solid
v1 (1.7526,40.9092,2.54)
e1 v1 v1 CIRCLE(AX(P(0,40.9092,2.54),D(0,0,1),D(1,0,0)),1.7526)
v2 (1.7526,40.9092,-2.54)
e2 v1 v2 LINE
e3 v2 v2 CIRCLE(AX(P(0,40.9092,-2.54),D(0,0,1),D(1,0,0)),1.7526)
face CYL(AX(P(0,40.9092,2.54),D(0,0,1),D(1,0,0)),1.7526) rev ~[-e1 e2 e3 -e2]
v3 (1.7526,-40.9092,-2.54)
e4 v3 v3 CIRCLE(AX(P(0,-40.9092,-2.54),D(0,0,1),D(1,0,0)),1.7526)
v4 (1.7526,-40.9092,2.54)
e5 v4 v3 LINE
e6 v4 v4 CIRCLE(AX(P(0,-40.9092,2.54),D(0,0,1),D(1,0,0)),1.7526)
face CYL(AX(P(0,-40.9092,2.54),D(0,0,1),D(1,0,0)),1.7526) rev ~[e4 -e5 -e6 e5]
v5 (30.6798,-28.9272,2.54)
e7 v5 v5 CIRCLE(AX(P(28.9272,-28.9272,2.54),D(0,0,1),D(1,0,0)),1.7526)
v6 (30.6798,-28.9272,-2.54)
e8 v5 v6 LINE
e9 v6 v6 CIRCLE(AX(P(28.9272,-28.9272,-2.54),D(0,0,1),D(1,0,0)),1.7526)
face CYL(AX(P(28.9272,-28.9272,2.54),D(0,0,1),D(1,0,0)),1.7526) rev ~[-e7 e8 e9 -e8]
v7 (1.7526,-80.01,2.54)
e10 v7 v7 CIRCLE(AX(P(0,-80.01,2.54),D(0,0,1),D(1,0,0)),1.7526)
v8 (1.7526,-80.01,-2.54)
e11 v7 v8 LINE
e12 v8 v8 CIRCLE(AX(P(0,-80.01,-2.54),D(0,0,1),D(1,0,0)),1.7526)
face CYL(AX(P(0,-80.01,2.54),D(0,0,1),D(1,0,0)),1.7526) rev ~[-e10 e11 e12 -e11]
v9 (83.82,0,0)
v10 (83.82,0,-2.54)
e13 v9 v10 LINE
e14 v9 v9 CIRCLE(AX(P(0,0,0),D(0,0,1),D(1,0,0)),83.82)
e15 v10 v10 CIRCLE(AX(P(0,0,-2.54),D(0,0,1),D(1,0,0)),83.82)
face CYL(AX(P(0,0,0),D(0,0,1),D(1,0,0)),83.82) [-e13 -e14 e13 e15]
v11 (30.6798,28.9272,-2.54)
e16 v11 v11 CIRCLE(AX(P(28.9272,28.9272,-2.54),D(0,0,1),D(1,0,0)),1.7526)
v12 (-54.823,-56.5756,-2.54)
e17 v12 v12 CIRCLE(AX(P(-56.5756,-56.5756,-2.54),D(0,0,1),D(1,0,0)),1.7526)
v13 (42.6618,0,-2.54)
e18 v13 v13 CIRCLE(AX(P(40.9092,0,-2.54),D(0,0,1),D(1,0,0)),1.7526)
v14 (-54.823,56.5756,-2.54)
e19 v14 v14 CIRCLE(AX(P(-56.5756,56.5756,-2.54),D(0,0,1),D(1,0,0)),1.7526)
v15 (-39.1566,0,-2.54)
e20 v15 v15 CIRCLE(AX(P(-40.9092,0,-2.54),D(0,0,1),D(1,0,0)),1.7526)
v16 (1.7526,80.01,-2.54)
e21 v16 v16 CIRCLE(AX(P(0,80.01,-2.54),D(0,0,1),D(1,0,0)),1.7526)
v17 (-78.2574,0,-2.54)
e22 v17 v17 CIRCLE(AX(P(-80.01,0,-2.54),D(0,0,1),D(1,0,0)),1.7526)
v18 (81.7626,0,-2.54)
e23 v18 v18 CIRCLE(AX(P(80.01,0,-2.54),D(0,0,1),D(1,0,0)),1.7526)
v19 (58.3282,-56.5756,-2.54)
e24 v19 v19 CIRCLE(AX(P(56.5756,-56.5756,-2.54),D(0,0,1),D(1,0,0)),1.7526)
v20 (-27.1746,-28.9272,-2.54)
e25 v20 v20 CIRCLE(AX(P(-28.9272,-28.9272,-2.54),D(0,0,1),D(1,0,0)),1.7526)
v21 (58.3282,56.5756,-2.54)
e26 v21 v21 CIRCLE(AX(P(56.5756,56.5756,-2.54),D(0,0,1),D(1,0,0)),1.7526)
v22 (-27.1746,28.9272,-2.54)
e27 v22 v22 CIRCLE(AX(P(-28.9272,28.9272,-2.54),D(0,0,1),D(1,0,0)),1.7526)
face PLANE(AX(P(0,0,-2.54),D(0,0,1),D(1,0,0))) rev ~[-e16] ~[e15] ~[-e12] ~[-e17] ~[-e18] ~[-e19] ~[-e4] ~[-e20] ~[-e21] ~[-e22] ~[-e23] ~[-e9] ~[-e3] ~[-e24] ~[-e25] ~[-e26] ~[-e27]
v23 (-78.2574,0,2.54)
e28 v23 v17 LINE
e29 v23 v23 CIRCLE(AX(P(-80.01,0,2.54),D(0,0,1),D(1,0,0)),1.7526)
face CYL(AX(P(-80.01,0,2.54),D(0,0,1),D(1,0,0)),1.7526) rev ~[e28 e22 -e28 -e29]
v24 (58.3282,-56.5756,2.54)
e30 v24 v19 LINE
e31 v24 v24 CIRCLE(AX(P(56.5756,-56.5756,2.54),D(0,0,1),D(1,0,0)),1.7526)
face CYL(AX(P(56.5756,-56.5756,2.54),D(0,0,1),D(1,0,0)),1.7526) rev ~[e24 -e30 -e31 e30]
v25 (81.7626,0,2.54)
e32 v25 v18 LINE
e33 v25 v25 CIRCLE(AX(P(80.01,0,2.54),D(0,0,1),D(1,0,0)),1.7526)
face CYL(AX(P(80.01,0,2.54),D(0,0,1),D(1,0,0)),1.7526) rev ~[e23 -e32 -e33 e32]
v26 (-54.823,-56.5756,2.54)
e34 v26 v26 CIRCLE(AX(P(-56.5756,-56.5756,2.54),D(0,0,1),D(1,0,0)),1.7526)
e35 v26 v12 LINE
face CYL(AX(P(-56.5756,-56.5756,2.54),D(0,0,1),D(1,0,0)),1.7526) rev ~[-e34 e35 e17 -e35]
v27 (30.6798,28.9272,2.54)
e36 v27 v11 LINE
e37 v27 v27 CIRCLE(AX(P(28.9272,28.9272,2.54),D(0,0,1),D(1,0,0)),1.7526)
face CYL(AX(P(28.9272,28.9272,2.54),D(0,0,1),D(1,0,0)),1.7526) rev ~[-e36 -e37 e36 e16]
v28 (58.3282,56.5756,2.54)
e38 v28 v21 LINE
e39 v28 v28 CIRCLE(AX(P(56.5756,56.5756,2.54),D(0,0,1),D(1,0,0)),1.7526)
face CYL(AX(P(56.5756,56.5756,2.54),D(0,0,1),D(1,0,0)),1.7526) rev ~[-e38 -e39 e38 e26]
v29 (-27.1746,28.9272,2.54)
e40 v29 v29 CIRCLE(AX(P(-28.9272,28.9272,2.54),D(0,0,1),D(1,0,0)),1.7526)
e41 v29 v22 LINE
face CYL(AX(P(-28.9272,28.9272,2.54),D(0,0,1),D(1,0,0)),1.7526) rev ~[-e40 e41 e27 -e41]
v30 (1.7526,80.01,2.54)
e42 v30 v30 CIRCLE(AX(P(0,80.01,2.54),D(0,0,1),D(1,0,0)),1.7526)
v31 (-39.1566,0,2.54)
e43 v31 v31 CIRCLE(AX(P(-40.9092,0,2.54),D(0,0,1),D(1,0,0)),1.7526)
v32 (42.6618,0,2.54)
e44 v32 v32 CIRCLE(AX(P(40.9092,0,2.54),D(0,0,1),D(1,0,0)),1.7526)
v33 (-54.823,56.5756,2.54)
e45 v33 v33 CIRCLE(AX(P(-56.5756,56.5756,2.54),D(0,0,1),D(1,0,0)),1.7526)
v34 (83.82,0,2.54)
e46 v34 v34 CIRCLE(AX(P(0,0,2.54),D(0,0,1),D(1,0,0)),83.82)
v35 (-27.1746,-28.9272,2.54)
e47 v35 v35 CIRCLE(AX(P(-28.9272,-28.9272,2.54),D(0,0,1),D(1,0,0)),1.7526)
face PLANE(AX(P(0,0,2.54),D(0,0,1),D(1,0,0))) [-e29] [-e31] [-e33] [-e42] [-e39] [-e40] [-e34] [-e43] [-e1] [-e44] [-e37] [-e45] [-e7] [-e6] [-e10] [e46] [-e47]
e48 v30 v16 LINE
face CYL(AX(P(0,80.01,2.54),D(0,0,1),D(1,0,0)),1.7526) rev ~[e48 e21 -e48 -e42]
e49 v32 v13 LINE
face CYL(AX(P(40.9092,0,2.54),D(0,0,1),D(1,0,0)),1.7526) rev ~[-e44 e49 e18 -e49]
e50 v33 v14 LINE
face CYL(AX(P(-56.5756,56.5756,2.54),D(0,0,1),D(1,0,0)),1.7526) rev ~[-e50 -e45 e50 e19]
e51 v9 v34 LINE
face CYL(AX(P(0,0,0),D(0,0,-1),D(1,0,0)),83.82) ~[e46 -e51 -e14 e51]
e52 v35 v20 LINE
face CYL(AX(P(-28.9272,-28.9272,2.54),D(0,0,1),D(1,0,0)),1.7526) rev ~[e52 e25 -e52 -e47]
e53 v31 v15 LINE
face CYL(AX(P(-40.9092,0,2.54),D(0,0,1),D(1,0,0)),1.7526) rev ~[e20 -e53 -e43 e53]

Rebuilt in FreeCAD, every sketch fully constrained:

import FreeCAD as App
import Part
import Sketcher
Q = App.Units.Quantity

doc = App.newDocument("Part")
body = doc.addObject("PartDesign::Body", "Body")

sketch1 = body.newObject("Sketcher::SketchObject", "Sketch")
sketch1.AttachmentSupport = (doc.getObject("XY_Plane"), [""])
sketch1.MapMode = "FlatFace"
sketch1.addGeometry(Part.Circle(App.Vector(0, 0, 0), App.Vector(0, 0, 1), 83.82), False)
sketch1.addConstraint(Sketcher.Constraint("Coincident", 0, 3, -1, 1))
sketch1.addConstraint(Sketcher.Constraint("Diameter", 0, Q("6.6 in")))
pad1 = body.newObject("PartDesign::Pad", "Pad")
pad1.Profile = sketch1
pad1.Length = Q("0.2 in")
pad1.Midplane = True

sketch2 = body.newObject("Sketcher::SketchObject", "Sketch001")
sketch2.AttachmentSupport = (doc.getObject("XY_Plane"), [""])
sketch2.MapMode = "FlatFace"
sketch2.AttachmentOffset = App.Placement(App.Vector(0, 0, 0.1 * 25.4), App.Rotation())
sketch2.addGeometry(Part.Circle(App.Vector(0, 80.01, 0), App.Vector(0, 0, 1), 1.7526), False)
sketch2.addGeometry(Part.Circle(App.Vector(-56.5756, 56.5756, 0), App.Vector(0, 0, 1), 1.7526), False)
sketch2.addGeometry(Part.Circle(App.Vector(-80.01, 0, 0), App.Vector(0, 0, 1), 1.7526), False)
sketch2.addGeometry(Part.Circle(App.Vector(-56.5756, -56.5756, 0), App.Vector(0, 0, 1), 1.7526), False)
sketch2.addGeometry(Part.Circle(App.Vector(0, -80.01, 0), App.Vector(0, 0, 1), 1.7526), False)
sketch2.addGeometry(Part.Circle(App.Vector(56.5756, -56.5756, 0), App.Vector(0, 0, 1), 1.7526), False)
sketch2.addGeometry(Part.Circle(App.Vector(80.01, 0, 0), App.Vector(0, 0, 1), 1.7526), False)
sketch2.addGeometry(Part.Circle(App.Vector(56.5756, 56.5756, 0), App.Vector(0, 0, 1), 1.7526), False)
sketch2.addConstraint(Sketcher.Constraint("Equal", 0, 1))
sketch2.addConstraint(Sketcher.Constraint("Equal", 1, 2))
sketch2.addConstraint(Sketcher.Constraint("Equal", 2, 3))
sketch2.addConstraint(Sketcher.Constraint("Equal", 3, 4))
sketch2.addConstraint(Sketcher.Constraint("Equal", 4, 5))
sketch2.addConstraint(Sketcher.Constraint("Equal", 5, 6))
sketch2.addConstraint(Sketcher.Constraint("Equal", 6, 7))
sketch2.addConstraint(Sketcher.Constraint("Symmetric", 0, 3, 4, 3, -1, 1))
sketch2.addConstraint(Sketcher.Constraint("Symmetric", 1, 3, 5, 3, -1, 1))
sketch2.addConstraint(Sketcher.Constraint("Symmetric", 2, 3, 6, 3, -1, 1))
sketch2.addConstraint(Sketcher.Constraint("Symmetric", 3, 3, 7, 3, -1, 1))
sketch2.addConstraint(Sketcher.Constraint("Symmetric", 3, 3, 5, 3, -2))
sketch2.addConstraint(Sketcher.Constraint("PointOnObject", 0, 3, -2))
sketch2.addConstraint(Sketcher.Constraint("PointOnObject", 2, 3, -1))
sketch2.addConstraint(Sketcher.Constraint("Diameter", 0, Q("0.138 in")))
sketch2.addConstraint(Sketcher.Constraint("DistanceY", 4, 3, 0, 3, Q("6.3 in")))
sketch2.addConstraint(Sketcher.Constraint("DistanceX", 2, 3, -1, 1, Q("3.15 in")))
sketch2.addConstraint(Sketcher.Constraint("DistanceX", 1, 3, -1, 1, 56.5756))
sketch2.addConstraint(Sketcher.Constraint("DistanceY", -1, 1, 1, 3, 56.5756))
pocket1 = body.newObject("PartDesign::Pocket", "Pocket")
pocket1.Profile = sketch2
pocket1.Type = "ThroughAll"

sketch3 = body.newObject("Sketcher::SketchObject", "Sketch002")
sketch3.AttachmentSupport = (doc.getObject("XY_Plane"), [""])
sketch3.MapMode = "FlatFace"
sketch3.AttachmentOffset = App.Placement(App.Vector(0, 0, 0.1 * 25.4), App.Rotation())
sketch3.addGeometry(Part.Circle(App.Vector(0, 40.9092, 0), App.Vector(0, 0, 1), 1.7526), False)
sketch3.addGeometry(Part.Circle(App.Vector(-28.9272, 28.9272, 0), App.Vector(0, 0, 1), 1.7526), False)
sketch3.addGeometry(Part.Circle(App.Vector(28.9272, 28.9272, 0), App.Vector(0, 0, 1), 1.7526), False)
sketch3.addGeometry(Part.Circle(App.Vector(-40.9092, 0, 0), App.Vector(0, 0, 1), 1.7526), False)
sketch3.addGeometry(Part.Circle(App.Vector(40.9092, 0, 0), App.Vector(0, 0, 1), 1.7526), False)
sketch3.addGeometry(Part.Circle(App.Vector(0, -40.9092, 0), App.Vector(0, 0, 1), 1.7526), False)
sketch3.addGeometry(Part.Circle(App.Vector(-28.9272, -28.9272, 0), App.Vector(0, 0, 1), 1.7526), False)
sketch3.addGeometry(Part.Circle(App.Vector(28.9272, -28.9272, 0), App.Vector(0, 0, 1), 1.7526), False)
sketch3.addConstraint(Sketcher.Constraint("Equal", 0, 1))
sketch3.addConstraint(Sketcher.Constraint("Equal", 1, 2))
sketch3.addConstraint(Sketcher.Constraint("Equal", 2, 3))
sketch3.addConstraint(Sketcher.Constraint("Equal", 3, 4))
sketch3.addConstraint(Sketcher.Constraint("Equal", 4, 5))
sketch3.addConstraint(Sketcher.Constraint("Equal", 5, 6))
sketch3.addConstraint(Sketcher.Constraint("Equal", 6, 7))
sketch3.addConstraint(Sketcher.Constraint("Symmetric", 3, 3, 4, 3, -1, 1))
sketch3.addConstraint(Sketcher.Constraint("Symmetric", 0, 3, 5, 3, -1, 1))
sketch3.addConstraint(Sketcher.Constraint("Symmetric", 2, 3, 6, 3, -1, 1))
sketch3.addConstraint(Sketcher.Constraint("Symmetric", 1, 3, 7, 3, -1, 1))
sketch3.addConstraint(Sketcher.Constraint("Symmetric", 1, 3, 2, 3, -2))
sketch3.addConstraint(Sketcher.Constraint("PointOnObject", 0, 3, -2))
sketch3.addConstraint(Sketcher.Constraint("PointOnObject", 3, 3, -1))
sketch3.addConstraint(Sketcher.Constraint("Diameter", 0, Q("0.138 in")))
sketch3.addConstraint(Sketcher.Constraint("DistanceY", -1, 1, 0, 3, Q("1.6106 in")))
sketch3.addConstraint(Sketcher.Constraint("DistanceX", 3, 3, -1, 1, Q("1.6106 in")))
sketch3.addConstraint(Sketcher.Constraint("DistanceX", 1, 3, -1, 1, 28.9272))
sketch3.addConstraint(Sketcher.Constraint("DistanceY", -1, 1, 1, 3, 28.9272))
pocket2 = body.newObject("PartDesign::Pocket", "Pocket001")
pocket2.Profile = sketch3
pocket2.Type = "ThroughAll"

doc.recompute()
